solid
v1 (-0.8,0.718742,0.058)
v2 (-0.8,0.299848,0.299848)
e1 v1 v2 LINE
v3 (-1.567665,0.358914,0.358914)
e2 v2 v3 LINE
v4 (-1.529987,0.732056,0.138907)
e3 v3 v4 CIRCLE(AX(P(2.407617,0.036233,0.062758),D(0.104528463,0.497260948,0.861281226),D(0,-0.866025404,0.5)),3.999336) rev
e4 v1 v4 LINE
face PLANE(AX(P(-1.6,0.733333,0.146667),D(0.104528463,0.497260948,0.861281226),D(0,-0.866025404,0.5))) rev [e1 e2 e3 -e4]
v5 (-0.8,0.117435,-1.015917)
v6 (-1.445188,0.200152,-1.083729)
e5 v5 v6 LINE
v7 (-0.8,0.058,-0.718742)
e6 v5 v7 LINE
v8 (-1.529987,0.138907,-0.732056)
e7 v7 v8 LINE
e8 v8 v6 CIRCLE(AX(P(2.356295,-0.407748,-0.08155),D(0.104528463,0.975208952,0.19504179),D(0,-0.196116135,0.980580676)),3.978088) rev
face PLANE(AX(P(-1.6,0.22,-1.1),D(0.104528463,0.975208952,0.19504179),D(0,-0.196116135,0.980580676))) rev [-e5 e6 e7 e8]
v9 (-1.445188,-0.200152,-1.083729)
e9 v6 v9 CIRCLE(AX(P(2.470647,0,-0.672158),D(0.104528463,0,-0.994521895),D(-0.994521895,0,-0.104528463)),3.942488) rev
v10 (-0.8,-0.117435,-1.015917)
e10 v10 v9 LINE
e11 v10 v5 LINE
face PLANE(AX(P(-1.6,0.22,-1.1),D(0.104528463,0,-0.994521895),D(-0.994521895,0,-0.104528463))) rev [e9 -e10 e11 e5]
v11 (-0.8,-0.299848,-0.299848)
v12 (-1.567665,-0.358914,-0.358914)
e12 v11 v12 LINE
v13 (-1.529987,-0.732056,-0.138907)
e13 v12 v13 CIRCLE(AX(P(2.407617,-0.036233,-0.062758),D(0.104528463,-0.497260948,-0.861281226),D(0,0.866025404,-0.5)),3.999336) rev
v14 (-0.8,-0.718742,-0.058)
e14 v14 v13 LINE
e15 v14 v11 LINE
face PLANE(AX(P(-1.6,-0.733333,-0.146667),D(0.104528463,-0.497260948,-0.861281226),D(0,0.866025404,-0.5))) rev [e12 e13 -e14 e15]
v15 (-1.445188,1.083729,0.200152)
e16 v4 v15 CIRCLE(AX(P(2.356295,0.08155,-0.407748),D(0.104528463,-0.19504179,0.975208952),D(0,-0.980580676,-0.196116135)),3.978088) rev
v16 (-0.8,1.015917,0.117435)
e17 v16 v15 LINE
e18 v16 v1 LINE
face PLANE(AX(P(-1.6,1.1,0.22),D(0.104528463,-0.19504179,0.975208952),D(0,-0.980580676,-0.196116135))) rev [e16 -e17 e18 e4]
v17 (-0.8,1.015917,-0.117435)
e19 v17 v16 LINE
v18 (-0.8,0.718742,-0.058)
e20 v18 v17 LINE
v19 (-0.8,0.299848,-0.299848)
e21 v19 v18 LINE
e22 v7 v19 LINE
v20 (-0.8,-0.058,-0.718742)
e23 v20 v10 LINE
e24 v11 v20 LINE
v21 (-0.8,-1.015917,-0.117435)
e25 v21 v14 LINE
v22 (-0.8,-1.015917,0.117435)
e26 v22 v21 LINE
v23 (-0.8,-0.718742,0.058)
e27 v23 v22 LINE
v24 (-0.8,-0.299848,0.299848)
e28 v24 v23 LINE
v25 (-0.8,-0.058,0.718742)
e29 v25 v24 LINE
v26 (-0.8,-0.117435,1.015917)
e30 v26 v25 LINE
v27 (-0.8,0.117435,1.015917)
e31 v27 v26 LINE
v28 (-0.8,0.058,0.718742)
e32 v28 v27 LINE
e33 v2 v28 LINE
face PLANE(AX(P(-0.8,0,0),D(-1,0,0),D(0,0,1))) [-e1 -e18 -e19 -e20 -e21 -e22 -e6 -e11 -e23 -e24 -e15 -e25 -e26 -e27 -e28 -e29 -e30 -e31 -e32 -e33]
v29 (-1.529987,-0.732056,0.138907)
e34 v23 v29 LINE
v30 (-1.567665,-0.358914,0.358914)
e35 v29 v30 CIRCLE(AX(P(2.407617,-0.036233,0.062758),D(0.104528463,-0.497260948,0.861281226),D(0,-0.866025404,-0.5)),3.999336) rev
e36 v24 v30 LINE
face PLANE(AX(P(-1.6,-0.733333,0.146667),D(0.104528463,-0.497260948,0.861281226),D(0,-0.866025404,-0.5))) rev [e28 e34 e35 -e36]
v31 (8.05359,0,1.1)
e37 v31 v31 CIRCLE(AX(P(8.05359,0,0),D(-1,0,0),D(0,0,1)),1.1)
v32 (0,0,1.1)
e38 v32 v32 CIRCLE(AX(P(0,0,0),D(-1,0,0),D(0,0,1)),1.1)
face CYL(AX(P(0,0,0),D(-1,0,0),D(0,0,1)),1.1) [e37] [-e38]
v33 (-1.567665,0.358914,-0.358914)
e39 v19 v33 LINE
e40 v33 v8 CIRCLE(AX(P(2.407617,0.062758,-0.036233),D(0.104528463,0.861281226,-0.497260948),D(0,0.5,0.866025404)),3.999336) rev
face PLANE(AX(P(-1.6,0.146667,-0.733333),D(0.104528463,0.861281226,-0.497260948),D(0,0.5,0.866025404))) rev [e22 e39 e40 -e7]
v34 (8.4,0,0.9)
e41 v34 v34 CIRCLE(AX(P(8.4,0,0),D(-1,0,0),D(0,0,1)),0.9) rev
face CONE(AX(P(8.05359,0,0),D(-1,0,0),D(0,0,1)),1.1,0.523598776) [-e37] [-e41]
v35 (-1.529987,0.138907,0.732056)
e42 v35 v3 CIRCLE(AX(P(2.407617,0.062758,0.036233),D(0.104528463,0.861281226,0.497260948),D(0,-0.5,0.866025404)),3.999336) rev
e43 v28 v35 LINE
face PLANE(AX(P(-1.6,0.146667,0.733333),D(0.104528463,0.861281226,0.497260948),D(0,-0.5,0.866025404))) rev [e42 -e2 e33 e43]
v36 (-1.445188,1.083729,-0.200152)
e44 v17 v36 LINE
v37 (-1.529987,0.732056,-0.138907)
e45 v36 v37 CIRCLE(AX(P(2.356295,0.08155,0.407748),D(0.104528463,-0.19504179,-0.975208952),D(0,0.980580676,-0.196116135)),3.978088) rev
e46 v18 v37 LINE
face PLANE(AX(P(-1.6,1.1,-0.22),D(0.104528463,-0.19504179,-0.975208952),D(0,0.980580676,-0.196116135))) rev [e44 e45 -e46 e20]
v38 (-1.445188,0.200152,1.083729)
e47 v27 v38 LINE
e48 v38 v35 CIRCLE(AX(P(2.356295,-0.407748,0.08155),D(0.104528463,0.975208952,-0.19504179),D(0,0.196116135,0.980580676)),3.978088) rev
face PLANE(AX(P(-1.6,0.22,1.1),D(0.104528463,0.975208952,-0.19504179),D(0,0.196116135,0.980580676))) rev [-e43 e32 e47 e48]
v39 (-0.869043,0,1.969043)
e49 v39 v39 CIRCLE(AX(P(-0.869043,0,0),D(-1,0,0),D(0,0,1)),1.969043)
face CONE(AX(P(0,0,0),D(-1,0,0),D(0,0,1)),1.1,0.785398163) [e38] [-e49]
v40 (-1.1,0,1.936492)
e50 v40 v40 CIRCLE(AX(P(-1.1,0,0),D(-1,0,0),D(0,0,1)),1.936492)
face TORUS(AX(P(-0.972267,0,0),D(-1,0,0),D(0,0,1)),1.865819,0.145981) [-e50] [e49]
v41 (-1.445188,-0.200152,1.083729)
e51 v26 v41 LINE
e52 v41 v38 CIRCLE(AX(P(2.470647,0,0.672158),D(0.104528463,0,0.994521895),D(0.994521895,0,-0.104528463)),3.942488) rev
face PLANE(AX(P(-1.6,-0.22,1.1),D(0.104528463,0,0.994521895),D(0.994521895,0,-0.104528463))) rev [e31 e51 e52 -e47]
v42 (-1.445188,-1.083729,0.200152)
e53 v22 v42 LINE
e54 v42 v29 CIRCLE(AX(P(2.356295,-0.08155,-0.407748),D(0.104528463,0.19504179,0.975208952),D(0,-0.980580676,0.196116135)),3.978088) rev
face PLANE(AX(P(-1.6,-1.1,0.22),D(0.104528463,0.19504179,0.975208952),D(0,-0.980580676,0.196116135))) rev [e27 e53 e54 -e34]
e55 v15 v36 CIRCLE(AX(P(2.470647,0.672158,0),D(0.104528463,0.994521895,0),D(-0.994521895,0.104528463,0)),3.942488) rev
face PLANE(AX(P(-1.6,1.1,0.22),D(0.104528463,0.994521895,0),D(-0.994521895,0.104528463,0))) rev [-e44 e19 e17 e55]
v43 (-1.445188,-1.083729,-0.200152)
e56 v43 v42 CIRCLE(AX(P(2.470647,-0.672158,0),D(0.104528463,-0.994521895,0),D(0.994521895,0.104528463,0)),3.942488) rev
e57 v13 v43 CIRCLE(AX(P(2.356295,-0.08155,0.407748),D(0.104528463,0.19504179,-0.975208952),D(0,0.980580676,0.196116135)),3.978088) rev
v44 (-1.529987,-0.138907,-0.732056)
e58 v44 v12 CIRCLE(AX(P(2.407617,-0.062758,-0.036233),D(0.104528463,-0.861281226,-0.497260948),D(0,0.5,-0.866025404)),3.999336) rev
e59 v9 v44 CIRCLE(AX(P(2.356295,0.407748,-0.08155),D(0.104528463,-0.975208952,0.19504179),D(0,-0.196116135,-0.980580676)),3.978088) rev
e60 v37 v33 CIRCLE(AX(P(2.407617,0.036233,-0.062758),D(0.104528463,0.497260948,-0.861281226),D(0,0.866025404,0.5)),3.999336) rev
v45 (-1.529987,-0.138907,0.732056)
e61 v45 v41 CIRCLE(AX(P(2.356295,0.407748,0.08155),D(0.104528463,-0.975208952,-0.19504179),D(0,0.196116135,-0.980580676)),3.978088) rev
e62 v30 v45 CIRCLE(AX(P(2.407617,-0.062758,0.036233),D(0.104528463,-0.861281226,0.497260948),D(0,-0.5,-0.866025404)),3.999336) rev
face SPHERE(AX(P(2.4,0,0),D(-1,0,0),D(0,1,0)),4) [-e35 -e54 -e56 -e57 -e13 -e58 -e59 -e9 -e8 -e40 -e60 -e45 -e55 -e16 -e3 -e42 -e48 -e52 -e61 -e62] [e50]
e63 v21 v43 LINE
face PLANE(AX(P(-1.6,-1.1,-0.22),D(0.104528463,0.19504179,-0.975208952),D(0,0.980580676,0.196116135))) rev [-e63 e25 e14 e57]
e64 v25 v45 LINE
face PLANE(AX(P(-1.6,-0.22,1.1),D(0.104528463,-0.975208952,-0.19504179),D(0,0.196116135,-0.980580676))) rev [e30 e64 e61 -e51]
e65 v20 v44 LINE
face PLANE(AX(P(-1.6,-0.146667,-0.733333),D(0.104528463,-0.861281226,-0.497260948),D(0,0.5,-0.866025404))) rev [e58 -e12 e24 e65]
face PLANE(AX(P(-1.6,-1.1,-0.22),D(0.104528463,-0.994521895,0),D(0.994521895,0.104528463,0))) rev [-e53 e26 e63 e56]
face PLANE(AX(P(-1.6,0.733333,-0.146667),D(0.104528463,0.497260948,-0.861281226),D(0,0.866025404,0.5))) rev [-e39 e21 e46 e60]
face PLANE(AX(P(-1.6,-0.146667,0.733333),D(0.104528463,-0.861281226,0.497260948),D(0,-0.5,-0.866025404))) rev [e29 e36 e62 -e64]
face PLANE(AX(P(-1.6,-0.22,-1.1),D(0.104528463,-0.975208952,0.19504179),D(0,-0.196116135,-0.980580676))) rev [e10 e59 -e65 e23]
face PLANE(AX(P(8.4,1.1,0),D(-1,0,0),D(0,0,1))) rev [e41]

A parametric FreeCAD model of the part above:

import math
import FreeCAD as App
import Part
import Sketcher
Q = App.Units.Quantity


def edges_at(feature, points):
    """Names of the edges that pass closest to the given points."""
    edges = feature.Shape.Edges
    near = lambda p: min(range(len(edges)), key=lambda i: edges[i].distToShape(Part.Vertex(*p))[0])
    return sorted({f"Edge{near(p) + 1}" for p in points})


def add_polygon(sketch, points):
    """Adds a closed chain of lines whose ends are joined by coincident constraints."""
    first, n = sketch.GeometryCount, len(points)
    for a, b in zip(points, points[1:] + points[:1]):
        sketch.addGeometry(Part.LineSegment(App.Vector(*a, 0), App.Vector(*b, 0)), False)
    for i in range(n):
        sketch.addConstraint(Sketcher.Constraint("Coincident", first + i, 2, first + (i + 1) % n, 1))

doc = App.newDocument("Part")
params = doc.addObject("Spreadsheet::Sheet", "Params")
for row, (alias, value) in enumerate([
    ("sketch1_radius", "4 mm"),
    ("sketch1_width", "10 mm"),
    ("sketch1_width2", "8.4 mm"),
    ("sketch1_height", "1.1 mm"),
    ("revolution_angle", "360 deg"),
    ("chamfer_size", "0.2 mm"),
    ("chamfer_size2", "0.34641 mm"),
    ("sketch2_width", "0.44 mm"),
    ("pocket1_length", "0.8 mm"),
    ("pocket1_taper", "-6 deg"),
], start=1):
    params.set(f"A{row}", alias)
    params.set(f"B{row}", "=" + value)
    params.setAlias(f"B{row}", alias)

body = doc.addObject("PartDesign::Body", "Body")

sketch1 = doc.addObject("Sketcher::SketchObject", "Sketch")
body.addObject(sketch1)
sketch1.AttachmentSupport = (doc.XY_Plane, [""])
sketch1.MapMode = "FlatFace"
sketch1.addGeometry([
    Part.LineSegment(App.Vector(-1.6, 0, 0), App.Vector(8.4, 0, 0)),
    Part.LineSegment(App.Vector(8.4, 0, 0), App.Vector(8.4, 1.1, 0)),
    Part.LineSegment(App.Vector(8.4, 1.1, 0), App.Vector(0, 1.1, 0)),
    Part.LineSegment(App.Vector(0, 1.1, 0), App.Vector(-0.87, 1.97, 0)),
    Part.ArcOfCircle(Part.Circle(App.Vector(-0.97, 1.87, 0), App.Vector(0, 0, 1), 0.15), math.radians(45), math.radians(151)),
    Part.ArcOfCircle(Part.Circle(App.Vector(2.4, 0, 0), App.Vector(0, 0, 1), 4), math.radians(151), math.radians(180)),
], False)
sketch1.addConstraint([
    Sketcher.Constraint("Coincident", 0, 2, 1, 1),
    Sketcher.Constraint("Coincident", 1, 2, 2, 1),
    Sketcher.Constraint("Coincident", 2, 2, 3, 1),
    Sketcher.Constraint("Tangent", 3, 2, 4, 1),
    Sketcher.Constraint("Tangent", 4, 2, 5, 1),
    Sketcher.Constraint("Coincident", 5, 2, 0, 1),
    Sketcher.Constraint("Horizontal", 0),
    Sketcher.Constraint("Vertical", 1),
    Sketcher.Constraint("Horizontal", 2),
    Sketcher.Constraint("PointOnObject", 5, 3, -1),
    Sketcher.Constraint("PointOnObject", 0, 2, -1),
    Sketcher.Constraint("PointOnObject", 2, 2, -2),
    Sketcher.Constraint("Radius", 5, Q("4 mm")),
    Sketcher.Constraint("DistanceX", 0, 1, 0, 2, Q("10 mm")),
    Sketcher.Constraint("Angle", 3, Q("135 deg")),
    Sketcher.Constraint("DistanceX", 2, 2, 2, 1, Q("8.4 mm")),
    Sketcher.Constraint("DistanceY", 1, 1, 1, 2, Q("1.1 mm")),
    Sketcher.Constraint("DistanceX", 4, 2, -1, 1, Q("1.1 mm")),
])
sketch1.setExpression("Constraints[12]", "Params.sketch1_radius")
sketch1.setExpression("Constraints[13]", "Params.sketch1_width")
sketch1.setExpression("Constraints[15]", "Params.sketch1_width2")
sketch1.setExpression("Constraints[16]", "Params.sketch1_height")
revolution = doc.addObject("PartDesign::Revolution", "Revolution")
body.addObject(revolution)
revolution.Profile = sketch1
revolution.ReferenceAxis = (sketch1, ["H_Axis"])
revolution.setExpression("Angle", "Params.revolution_angle")
doc.recompute()

chamfer = doc.addObject("PartDesign::Chamfer", "Chamfer")
body.addObject(chamfer)
chamfer.Base = (revolution, edges_at(revolution, [(8.4, 0, -1.1)]))
chamfer.ChamferType = "Two distances"
chamfer.setExpression("Size", "Params.chamfer_size")
chamfer.setExpression("Size2", "Params.chamfer_size2")

sketch2 = doc.addObject("Sketcher::SketchObject", "Sketch001")
body.addObject(sketch2)
sketch2.AttachmentSupport = (doc.YZ_Plane, [""])
sketch2.MapMode = "FlatFace"
sketch2.AttachmentOffset = App.Placement(App.Vector(0, 0, -1.6), App.Rotation())
add_polygon(sketch2, [(1.1, 0.22), (0.73, 0.15), (0.36, 0.36), (0.15, 0.73), (0.22, 1.1), (-0.22, 1.1), (-0.15, 0.73), (-0.36, 0.36), (-0.73, 0.15), (-1.1, 0.22), (-1.1, -0.22), (-0.73, -0.15), (-0.36, -0.36), (-0.15, -0.73), (-0.22, -1.1), (0.22, -1.1), (0.15, -0.73), (0.36, -0.36), (0.73, -0.15), (1.1, -0.22)])
sketch2.addConstraint([
    Sketcher.Constraint("Horizontal", 4),
    Sketcher.Constraint("Vertical", 9),
    Sketcher.Constraint("Horizontal", 14),
    Sketcher.Constraint("Vertical", 19),
    Sketcher.Constraint("Symmetric", 0, 2, 10, 2, -1, 1),
    Sketcher.Constraint("Symmetric", 1, 2, 11, 2, -1, 1),
    Sketcher.Constraint("Symmetric", 2, 2, 12, 2, -1, 1),
    Sketcher.Constraint("Symmetric", 3, 2, 13, 2, -1, 1),
    Sketcher.Constraint("Symmetric", 5, 2, 15, 2, -1, 1),
    Sketcher.Constraint("Symmetric", 6, 2, 16, 2, -1, 1),
    Sketcher.Constraint("Symmetric", 7, 2, 17, 2, -1, 1),
    Sketcher.Constraint("Symmetric", 8, 2, 18, 2, -1, 1),
    Sketcher.Constraint("Symmetric", 2, 2, 5, 2, -2),
    Sketcher.Constraint("Symmetric", 1, 2, 6, 2, -2),
    Sketcher.Constraint("Symmetric", 0, 2, 7, 2, -2),
    Sketcher.Constraint("Perpendicular", 0, 5),
    Sketcher.Constraint("Perpendicular", 1, 6),
    Sketcher.Constraint("Perpendicular", 3, 8),
    Sketcher.Constraint("Perpendicular", 5, 10),
    Sketcher.Constraint("Perpendicular", 10, 15),
    Sketcher.Constraint("Horizontal", 9, 2, 18, 2),
    Sketcher.Constraint("Equal", 14, 9),
    Sketcher.Constraint("Equal", 1, 2),
    Sketcher.Constraint("Equal", 0, 3),
    Sketcher.Constraint("Angle", 1, Q("150 deg")),
    Sketcher.Constraint("DistanceX", 4, 2, 4, 1, Q("0.44 mm")),
    Sketcher.Constraint("DistanceY", -1, 1, 3, 2, Q("1.1 mm")),
    Sketcher.Constraint("DistanceX", 5, 2, 0, 2, Q("0.88 mm")),
    Sketcher.Constraint("DistanceX", -1, 1, 1, 2, Q("0.361402 mm")),
])
sketch2.setExpression("Constraints[45]", "Params.sketch2_width")
pocket1 = doc.addObject("PartDesign::Pocket", "Pocket")
body.addObject(pocket1)
pocket1.Profile = sketch2
pocket1.setExpression("Length", "Params.pocket1_length")
pocket1.Reversed = True
pocket1.setExpression("TaperAngle", "Params.pocket1_taper")

doc.recompute()
